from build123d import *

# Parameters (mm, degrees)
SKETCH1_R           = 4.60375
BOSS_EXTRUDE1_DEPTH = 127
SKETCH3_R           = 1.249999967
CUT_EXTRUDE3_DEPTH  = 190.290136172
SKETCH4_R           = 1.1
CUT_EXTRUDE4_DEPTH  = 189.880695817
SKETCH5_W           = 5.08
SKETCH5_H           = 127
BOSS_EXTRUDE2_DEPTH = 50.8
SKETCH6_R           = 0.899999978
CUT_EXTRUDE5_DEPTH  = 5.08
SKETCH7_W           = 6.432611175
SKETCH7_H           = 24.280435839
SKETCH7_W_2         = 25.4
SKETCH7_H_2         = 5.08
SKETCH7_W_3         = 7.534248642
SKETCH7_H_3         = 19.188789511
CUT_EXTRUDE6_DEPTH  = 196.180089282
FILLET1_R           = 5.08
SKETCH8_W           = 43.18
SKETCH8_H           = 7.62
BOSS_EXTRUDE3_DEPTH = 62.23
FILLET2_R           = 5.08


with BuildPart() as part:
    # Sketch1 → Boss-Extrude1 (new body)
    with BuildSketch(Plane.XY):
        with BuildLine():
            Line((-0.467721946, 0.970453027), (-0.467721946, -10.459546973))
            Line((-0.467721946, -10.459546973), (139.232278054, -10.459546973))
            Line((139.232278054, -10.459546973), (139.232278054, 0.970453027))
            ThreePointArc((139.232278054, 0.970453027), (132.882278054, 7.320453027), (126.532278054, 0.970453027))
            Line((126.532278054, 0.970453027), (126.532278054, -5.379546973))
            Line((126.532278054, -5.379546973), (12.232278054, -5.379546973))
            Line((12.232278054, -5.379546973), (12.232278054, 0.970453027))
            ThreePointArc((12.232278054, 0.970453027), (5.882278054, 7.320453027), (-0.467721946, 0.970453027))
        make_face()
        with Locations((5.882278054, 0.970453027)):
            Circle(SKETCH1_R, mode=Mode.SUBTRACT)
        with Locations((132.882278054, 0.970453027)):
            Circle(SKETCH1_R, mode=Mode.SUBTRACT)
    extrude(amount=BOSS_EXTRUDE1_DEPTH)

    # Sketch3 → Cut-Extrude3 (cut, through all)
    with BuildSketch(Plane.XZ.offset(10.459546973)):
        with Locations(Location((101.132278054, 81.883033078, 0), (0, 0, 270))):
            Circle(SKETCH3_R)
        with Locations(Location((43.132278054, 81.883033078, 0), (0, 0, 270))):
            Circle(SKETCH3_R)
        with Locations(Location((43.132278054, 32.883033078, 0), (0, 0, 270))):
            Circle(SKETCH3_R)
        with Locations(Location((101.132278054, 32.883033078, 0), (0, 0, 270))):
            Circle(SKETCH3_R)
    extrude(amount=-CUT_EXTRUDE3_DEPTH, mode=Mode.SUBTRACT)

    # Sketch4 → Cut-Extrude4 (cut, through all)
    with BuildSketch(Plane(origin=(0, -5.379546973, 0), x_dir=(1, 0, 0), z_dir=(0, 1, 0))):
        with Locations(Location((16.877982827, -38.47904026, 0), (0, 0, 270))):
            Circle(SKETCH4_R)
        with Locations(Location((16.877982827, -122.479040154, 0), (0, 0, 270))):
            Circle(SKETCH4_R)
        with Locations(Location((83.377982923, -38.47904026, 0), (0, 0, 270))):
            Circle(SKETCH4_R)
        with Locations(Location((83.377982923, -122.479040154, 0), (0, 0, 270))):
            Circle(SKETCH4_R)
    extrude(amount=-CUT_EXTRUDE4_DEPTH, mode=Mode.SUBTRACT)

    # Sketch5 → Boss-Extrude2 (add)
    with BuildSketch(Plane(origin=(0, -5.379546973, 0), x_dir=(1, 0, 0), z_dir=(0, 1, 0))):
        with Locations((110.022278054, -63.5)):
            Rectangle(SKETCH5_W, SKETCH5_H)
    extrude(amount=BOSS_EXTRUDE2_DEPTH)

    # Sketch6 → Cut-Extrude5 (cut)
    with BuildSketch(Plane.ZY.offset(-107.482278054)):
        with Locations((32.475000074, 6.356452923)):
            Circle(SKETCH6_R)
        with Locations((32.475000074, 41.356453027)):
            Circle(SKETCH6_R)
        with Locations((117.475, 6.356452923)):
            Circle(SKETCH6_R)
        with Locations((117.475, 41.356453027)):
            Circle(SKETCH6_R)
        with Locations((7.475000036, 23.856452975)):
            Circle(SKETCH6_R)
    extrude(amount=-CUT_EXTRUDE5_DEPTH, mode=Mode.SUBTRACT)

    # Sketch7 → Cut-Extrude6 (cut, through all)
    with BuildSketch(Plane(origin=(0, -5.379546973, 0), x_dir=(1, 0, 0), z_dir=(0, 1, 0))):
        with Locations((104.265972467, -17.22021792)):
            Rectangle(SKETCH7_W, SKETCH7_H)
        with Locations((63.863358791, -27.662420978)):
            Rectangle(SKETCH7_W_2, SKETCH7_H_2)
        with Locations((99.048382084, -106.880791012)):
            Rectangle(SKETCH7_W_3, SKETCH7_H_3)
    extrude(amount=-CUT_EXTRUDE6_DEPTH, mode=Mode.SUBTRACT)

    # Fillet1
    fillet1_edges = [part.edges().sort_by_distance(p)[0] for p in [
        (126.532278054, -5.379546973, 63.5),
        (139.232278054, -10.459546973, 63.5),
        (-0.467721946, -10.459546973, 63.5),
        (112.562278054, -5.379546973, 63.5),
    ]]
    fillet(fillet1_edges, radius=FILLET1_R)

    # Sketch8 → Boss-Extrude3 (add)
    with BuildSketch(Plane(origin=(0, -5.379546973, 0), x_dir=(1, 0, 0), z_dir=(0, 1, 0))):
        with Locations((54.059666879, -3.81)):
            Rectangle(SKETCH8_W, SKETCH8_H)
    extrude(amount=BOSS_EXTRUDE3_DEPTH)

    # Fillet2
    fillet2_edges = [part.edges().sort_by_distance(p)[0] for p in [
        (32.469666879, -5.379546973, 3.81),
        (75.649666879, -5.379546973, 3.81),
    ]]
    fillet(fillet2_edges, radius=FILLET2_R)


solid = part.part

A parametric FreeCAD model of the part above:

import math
import FreeCAD as App
import Part
import Sketcher
from FreeCAD import Vector
Q = App.Units.Quantity


def edges_at(feature, points):
    """Names of the edges that pass closest to the given points."""
    edges = feature.Shape.Edges
    near = lambda p: min(range(len(edges)), key=lambda i: edges[i].distToShape(Part.Vertex(*p))[0])
    return sorted({f"Edge{near(p) + 1}" for p in points})

doc = App.newDocument("Part")
params = doc.addObject("Spreadsheet::Sheet", "Params")
for row, (alias, value) in enumerate([
    ("sketch1_radius", "0.25 in"),
    ("sketch1_width", "5.5 in"),
    ("sketch1_height", "0.45 in"),
    ("sketch1_height2", "0.25 in"),
    ("pad1_length", "5 in"),
    ("sketch4_height", "5 in"),
    ("sketch4_width", "0.2 in"),
    ("pad2_length", "2 in"),
    ("pocket3_length", "0.2 in"),
    ("sketch6_width", "1 in"),
    ("sketch6_height", "0.2 in"),
    ("fillet_radius", "0.2 in"),
    ("sketch7_width", "1.7 in"),
    ("sketch7_height", "0.3 in"),
    ("pad3_length", "2.45 in"),
    ("fillet2_radius", "0.2 in"),
], start=1):
    params.set(f"A{row}", alias)
    params.set(f"B{row}", "=" + value)
    params.setAlias(f"B{row}", alias)

body = doc.addObject("PartDesign::Body", "Body")

sketch1 = body.newObject("Sketcher::SketchObject", "Sketch")
sketch1.AttachmentSupport = (doc.getObject("XY_Plane"), [""])
sketch1.MapMode = "FlatFace"
sketch1.addGeometry(Part.LineSegment(Vector(-0.467722, 0.970453, 0), Vector(-0.467722, -10.459547, 0)), False)
sketch1.addGeometry(Part.LineSegment(Vector(-0.467722, -10.459547, 0), Vector(139.232278, -10.459547, 0)), False)
sketch1.addGeometry(Part.LineSegment(Vector(139.232278, -10.459547, 0), Vector(139.232278, 0.970453, 0)), False)
sketch1.addGeometry(Part.ArcOfCircle(Part.Circle(Vector(132.882278, 0.970453, 0), Vector(0, 0, 1), 6.35), math.radians(0), math.radians(180)), False)
sketch1.addGeometry(Part.LineSegment(Vector(126.532278, 0.970453, 0), Vector(126.532278, -5.379547, 0)), False)
sketch1.addGeometry(Part.LineSegment(Vector(126.532278, -5.379547, 0), Vector(12.232278, -5.379547, 0)), False)
sketch1.addGeometry(Part.LineSegment(Vector(12.232278, -5.379547, 0), Vector(12.232278, 0.970453, 0)), False)
sketch1.addGeometry(Part.ArcOfCircle(Part.Circle(Vector(5.882278, 0.970453, 0), Vector(0, 0, 1), 6.35), math.radians(0), math.radians(180)), False)
sketch1.addGeometry(Part.Circle(Vector(5.882278, 0.970453, 0), Vector(0, 0, 1), 4.60375), False)
sketch1.addGeometry(Part.Circle(Vector(132.882278, 0.970453, 0), Vector(0, 0, 1), 4.60375), False)
sketch1.addConstraint(Sketcher.Constraint("Coincident", 0, 2, 1, 1))
sketch1.addConstraint(Sketcher.Constraint("Coincident", 1, 2, 2, 1))
sketch1.addConstraint(Sketcher.Constraint("Tangent", 2, 2, 3, 1))
sketch1.addConstraint(Sketcher.Constraint("Tangent", 3, 2, 4, 1))
sketch1.addConstraint(Sketcher.Constraint("Coincident", 4, 2, 5, 1))
sketch1.addConstraint(Sketcher.Constraint("Coincident", 5, 2, 6, 1))
sketch1.addConstraint(Sketcher.Constraint("Tangent", 6, 2, 7, 1))
sketch1.addConstraint(Sketcher.Constraint("Tangent", 7, 2, 0, 1))
sketch1.addConstraint(Sketcher.Constraint("Vertical", 0))
sketch1.addConstraint(Sketcher.Constraint("Horizontal", 1))
sketch1.addConstraint(Sketcher.Constraint("Vertical", 2))
sketch1.addConstraint(Sketcher.Constraint("Vertical", 4))
sketch1.addConstraint(Sketcher.Constraint("Horizontal", 5))
sketch1.addConstraint(Sketcher.Constraint("Vertical", 6))
sketch1.addConstraint(Sketcher.Constraint("Coincident", 8, 3, 7, 3))
sketch1.addConstraint(Sketcher.Constraint("Coincident", 9, 3, 3, 3))
sketch1.addConstraint(Sketcher.Constraint("Equal", 3, 7))
sketch1.addConstraint(Sketcher.Constraint("Equal", 8, 9))
sketch1.addConstraint(Sketcher.Constraint("Horizontal", 3, 3, 7, 3))
sketch1.addConstraint(Sketcher.Constraint("Radius", 3, Q("0.25 in")))
sketch1.addConstraint(Sketcher.Constraint("DistanceX", 1, 1, 1, 2, Q("5.5 in")))
sketch1.addConstraint(Sketcher.Constraint("Diameter", 8, Q("0.3625 in")))
sketch1.addConstraint(Sketcher.Constraint("DistanceY", 0, 2, 0, 1, Q("0.45 in")))
sketch1.addConstraint(Sketcher.Constraint("DistanceY", 4, 2, 4, 1, Q("0.25 in")))
sketch1.addConstraint(Sketcher.Constraint("DistanceX", -1, 1, 3, 3, Q("132.882278 mm")))
sketch1.addConstraint(Sketcher.Constraint("DistanceY", -1, 1, 3, 3, Q("0.970453 mm")))
sketch1.setExpression("Constraints[19]", "Params.sketch1_radius")
sketch1.setExpression("Constraints[20]", "Params.sketch1_width")
sketch1.setExpression("Constraints[22]", "Params.sketch1_height")
sketch1.setExpression("Constraints[23]", "Params.sketch1_height2")
pad1 = body.newObject("PartDesign::Pad", "Pad")
pad1.Profile = sketch1
pad1.setExpression("Length", "Params.pad1_length")

sketch2 = body.newObject("Sketcher::SketchObject", "Sketch001")
sketch2.AttachmentSupport = (doc.getObject("XZ_Plane"), [""])
sketch2.MapMode = "FlatFace"
sketch2.AttachmentOffset = App.Placement(Vector(0, 0, 10.459547), App.Rotation())
sketch2.addGeometry(Part.Circle(Vector(101.132278, 81.883033, 0), Vector(0, 0, 1), 1.25), False)
sketch2.addGeometry(Part.Circle(Vector(43.132278, 81.883033, 0), Vector(0, 0, 1), 1.25), False)
sketch2.addGeometry(Part.Circle(Vector(43.132278, 32.883033, 0), Vector(0, 0, 1), 1.25), False)
sketch2.addGeometry(Part.Circle(Vector(101.132278, 32.883033, 0), Vector(0, 0, 1), 1.25), False)
sketch2.addConstraint(Sketcher.Constraint("Equal", 0, 1))
sketch2.addConstraint(Sketcher.Constraint("Equal", 1, 2))
sketch2.addConstraint(Sketcher.Constraint("Equal", 2, 3))
sketch2.addConstraint(Sketcher.Constraint("Horizontal", 0, 3, 1, 3))
sketch2.addConstraint(Sketcher.Constraint("Horizontal", 2, 3, 3, 3))
sketch2.addConstraint(Sketcher.Constraint("Vertical", 1, 3, 2, 3))
sketch2.addConstraint(Sketcher.Constraint("Vertical", 0, 3, 3, 3))
sketch2.addConstraint(Sketcher.Constraint("Diameter", 0, Q("2.5 mm")))
sketch2.addConstraint(Sketcher.Constraint("DistanceX", 1, 3, 0, 3, Q("58 mm")))
sketch2.addConstraint(Sketcher.Constraint("DistanceY", 2, 3, 1, 3, Q("49 mm")))
sketch2.addConstraint(Sketcher.Constraint("DistanceX", -1, 1, 0, 3, Q("101.132278 mm")))
sketch2.addConstraint(Sketcher.Constraint("DistanceY", -1, 1, 0, 3, Q("81.883033 mm")))
pocket1 = body.newObject("PartDesign::Pocket", "Pocket")
pocket1.Profile = sketch2
pocket1.Type = "ThroughAll"

sketch3 = body.newObject("Sketcher::SketchObject", "Sketch002")
sketch3.AttachmentSupport = (doc.getObject("XZ_Plane"), [""])
sketch3.MapMode = "FlatFace"
sketch3.AttachmentOffset = App.Placement(Vector(0, 0, 5.379547), App.Rotation())
sketch3.addGeometry(Part.Circle(Vector(16.877983, 38.47904, 0), Vector(0, 0, 1), 1.1), False)
sketch3.addGeometry(Part.Circle(Vector(16.877983, 122.47904, 0), Vector(0, 0, 1), 1.1), False)
sketch3.addGeometry(Part.Circle(Vector(83.377983, 38.47904, 0), Vector(0, 0, 1), 1.1), False)
sketch3.addGeometry(Part.Circle(Vector(83.377983, 122.47904, 0), Vector(0, 0, 1), 1.1), False)
sketch3.addConstraint(Sketcher.Constraint("Equal", 0, 1))
sketch3.addConstraint(Sketcher.Constraint("Equal", 1, 2))
sketch3.addConstraint(Sketcher.Constraint("Equal", 2, 3))
sketch3.addConstraint(Sketcher.Constraint("Horizontal", 0, 3, 2, 3))
sketch3.addConstraint(Sketcher.Constraint("Horizontal", 1, 3, 3, 3))
sketch3.addConstraint(Sketcher.Constraint("Vertical", 0, 3, 1, 3))
sketch3.addConstraint(Sketcher.Constraint("Vertical", 2, 3, 3, 3))
sketch3.addConstraint(Sketcher.Constraint("Diameter", 0, Q("2.2 mm")))
sketch3.addConstraint(Sketcher.Constraint("DistanceY", 0, 3, 1, 3, Q("84 mm")))
sketch3.addConstraint(Sketcher.Constraint("DistanceX", 0, 3, 2, 3, Q("66.5 mm")))
sketch3.addConstraint(Sketcher.Constraint("DistanceY", -1, 1, 0, 3, Q("38.47904 mm")))
sketch3.addConstraint(Sketcher.Constraint("DistanceX", -1, 1, 0, 3, Q("16.877983 mm")))
pocket2 = body.newObject("PartDesign::Pocket", "Pocket001")
pocket2.Profile = sketch3
pocket2.Type = "ThroughAll"
pocket2.Reversed = True

sketch4 = body.newObject("Sketcher::SketchObject", "Sketch003")
sketch4.AttachmentSupport = (doc.getObject("XZ_Plane"), [""])
sketch4.MapMode = "FlatFace"
sketch4.AttachmentOffset = App.Placement(Vector(0, 0, 5.379547), App.Rotation())
sketch4.addGeometry(Part.LineSegment(Vector(107.482278, 0, 0), Vector(107.482278, 127, 0)), False)
sketch4.addGeometry(Part.LineSegment(Vector(107.482278, 127, 0), Vector(112.562278, 127, 0)), False)
sketch4.addGeometry(Part.LineSegment(Vector(112.562278, 127, 0), Vector(112.562278, 0, 0)), False)
sketch4.addGeometry(Part.LineSegment(Vector(112.562278, 0, 0), Vector(107.482278, 0, 0)), False)
sketch4.addConstraint(Sketcher.Constraint("Coincident", 0, 2, 1, 1))
sketch4.addConstraint(Sketcher.Constraint("Coincident", 1, 2, 2, 1))
sketch4.addConstraint(Sketcher.Constraint("Coincident", 2, 2, 3, 1))
sketch4.addConstraint(Sketcher.Constraint("Coincident", 3, 2, 0, 1))
sketch4.addConstraint(Sketcher.Constraint("Vertical", 0))
sketch4.addConstraint(Sketcher.Constraint("Horizontal", 1))
sketch4.addConstraint(Sketcher.Constraint("Vertical", 2))
sketch4.addConstraint(Sketcher.Constraint("Horizontal", 3))
sketch4.addConstraint(Sketcher.Constraint("PointOnObject", 2, 2, -1))
sketch4.addConstraint(Sketcher.Constraint("DistanceY", 0, 1, 0, 2, Q("5 in")))
sketch4.addConstraint(Sketcher.Constraint("DistanceX", 1, 1, 1, 2, Q("0.2 in")))
sketch4.addConstraint(Sketcher.Constraint("DistanceX", -1, 1, 0, 2, Q("107.482278 mm")))
sketch4.setExpression("Constraints[9]", "Params.sketch4_height")
sketch4.setExpression("Constraints[10]", "Params.sketch4_width")
pad2 = body.newObject("PartDesign::Pad", "Pad001")
pad2.Profile = sketch4
pad2.setExpression("Length", "Params.pad2_length")
pad2.Reversed = True

sketch5 = body.newObject("Sketcher::SketchObject", "Sketch004")
sketch5.AttachmentSupport = (doc.getObject("YZ_Plane"), [""])
sketch5.MapMode = "FlatFace"
sketch5.AttachmentOffset = App.Placement(Vector(0, 0, 107.482278), App.Rotation())
sketch5.addGeometry(Part.Circle(Vector(6.356453, 32.475, 0), Vector(0, 0, 1), 0.9), False)
sketch5.addGeometry(Part.Circle(Vector(41.356453, 32.475, 0), Vector(0, 0, 1), 0.9), False)
sketch5.addGeometry(Part.Circle(Vector(6.356453, 117.475, 0), Vector(0, 0, 1), 0.9), False)
sketch5.addGeometry(Part.Circle(Vector(41.356453, 117.475, 0), Vector(0, 0, 1), 0.9), False)
sketch5.addGeometry(Part.Circle(Vector(23.856453, 7.475, 0), Vector(0, 0, 1), 0.9), False)
sketch5.addConstraint(Sketcher.Constraint("Equal", 0, 1))
sketch5.addConstraint(Sketcher.Constraint("Equal", 1, 2))
sketch5.addConstraint(Sketcher.Constraint("Equal", 2, 3))
sketch5.addConstraint(Sketcher.Constraint("Equal", 3, 4))
sketch5.addConstraint(Sketcher.Constraint("Horizontal", 0, 3, 1, 3))
sketch5.addConstraint(Sketcher.Constraint("Horizontal", 2, 3, 3, 3))
sketch5.addConstraint(Sketcher.Constraint("Vertical", 0, 3, 2, 3))
sketch5.addConstraint(Sketcher.Constraint("Vertical", 1, 3, 3, 3))
sketch5.addConstraint(Sketcher.Constraint("Diameter", 0, Q("1.8 mm")))
sketch5.addConstraint(Sketcher.Constraint("DistanceY", -1, 1, 2, 3, Q("4.625 in")))
sketch5.addConstraint(Sketcher.Constraint("DistanceY", -1, 1, 0, 3, Q("32.475 mm")))
sketch5.addConstraint(Sketcher.Constraint("DistanceY", -1, 1, 4, 3, Q("7.475 mm")))
sketch5.addConstraint(Sketcher.Constraint("DistanceX", 0, 3, 1, 3, Q("35 mm")))
sketch5.addConstraint(Sketcher.Constraint("DistanceX", 0, 3, 4, 3, Q("17.5 mm")))
sketch5.addConstraint(Sketcher.Constraint("DistanceX", -1, 1, 0, 3, Q("6.356453 mm")))
pocket3 = body.newObject("PartDesign::Pocket", "Pocket002")
pocket3.Profile = sketch5
pocket3.setExpression("Length", "Params.pocket3_length")
pocket3.Reversed = True

sketch6 = body.newObject("Sketcher::SketchObject", "Sketch005")
sketch6.AttachmentSupport = (doc.getObject("XZ_Plane"), [""])
sketch6.MapMode = "FlatFace"
sketch6.AttachmentOffset = App.Placement(Vector(0, 0, 5.379547), App.Rotation())
sketch6.addGeometry(Part.LineSegment(Vector(101.049667, 5.08, 0), Vector(101.049667, 29.360436, 0)), False)
sketch6.addGeometry(Part.LineSegment(Vector(101.049667, 29.360436, 0), Vector(107.482278, 29.360436, 0)), False)
sketch6.addGeometry(Part.LineSegment(Vector(107.482278, 29.360436, 0), Vector(107.482278, 5.08, 0)), False)
sketch6.addGeometry(Part.LineSegment(Vector(107.482278, 5.08, 0), Vector(101.049667, 5.08, 0)), False)
sketch6.addGeometry(Part.LineSegment(Vector(51.163359, 25.122421, 0), Vector(51.163359, 30.202421, 0)), False)
sketch6.addGeometry(Part.LineSegment(Vector(51.163359, 30.202421, 0), Vector(76.563359, 30.202421, 0)), False)
sketch6.addGeometry(Part.LineSegment(Vector(76.563359, 30.202421, 0), Vector(76.563359, 25.122421, 0)), False)
sketch6.addGeometry(Part.LineSegment(Vector(76.563359, 25.122421, 0), Vector(51.163359, 25.122421, 0)), False)
sketch6.addGeometry(Part.LineSegment(Vector(95.281258, 97.286396, 0), Vector(95.281258, 116.475186, 0)), False)
sketch6.addGeometry(Part.LineSegment(Vector(95.281258, 116.475186, 0), Vector(102.815506, 116.475186, 0)), False)
sketch6.addGeometry(Part.LineSegment(Vector(102.815506, 116.475186, 0), Vector(102.815506, 97.286396, 0)), False)
sketch6.addGeometry(Part.LineSegment(Vector(102.815506, 97.286396, 0), Vector(95.281258, 97.286396, 0)), False)
sketch6.addConstraint(Sketcher.Constraint("Coincident", 0, 2, 1, 1))
sketch6.addConstraint(Sketcher.Constraint("Coincident", 1, 2, 2, 1))
sketch6.addConstraint(Sketcher.Constraint("Coincident", 2, 2, 3, 1))
sketch6.addConstraint(Sketcher.Constraint("Coincident", 3, 2, 0, 1))
sketch6.addConstraint(Sketcher.Constraint("Coincident", 4, 2, 5, 1))
sketch6.addConstraint(Sketcher.Constraint("Coincident", 5, 2, 6, 1))
sketch6.addConstraint(Sketcher.Constraint("Coincident", 6, 2, 7, 1))
sketch6.addConstraint(Sketcher.Constraint("Coincident", 7, 2, 4, 1))
sketch6.addConstraint(Sketcher.Constraint("Coincident", 8, 2, 9, 1))
sketch6.addConstraint(Sketcher.Constraint("Coincident", 9, 2, 10, 1))
sketch6.addConstraint(Sketcher.Constraint("Coincident", 10, 2, 11, 1))
sketch6.addConstraint(Sketcher.Constraint("Coincident", 11, 2, 8, 1))
sketch6.addConstraint(Sketcher.Constraint("Vertical", 0))
sketch6.addConstraint(Sketcher.Constraint("Horizontal", 1))
sketch6.addConstraint(Sketcher.Constraint("Vertical", 2))
sketch6.addConstraint(Sketcher.Constraint("Horizontal", 3))
sketch6.addConstraint(Sketcher.Constraint("Vertical", 4))
sketch6.addConstraint(Sketcher.Constraint("Horizontal", 5))
sketch6.addConstraint(Sketcher.Constraint("Vertical", 6))
sketch6.addConstraint(Sketcher.Constraint("Horizontal", 7))
sketch6.addConstraint(Sketcher.Constraint("Vertical", 8))
sketch6.addConstraint(Sketcher.Constraint("Horizontal", 9))
sketch6.addConstraint(Sketcher.Constraint("Vertical", 10))
sketch6.addConstraint(Sketcher.Constraint("Horizontal", 11))
sketch6.addConstraint(Sketcher.Constraint("DistanceX", 5, 1, 5, 2, Q("1 in")))
sketch6.addConstraint(Sketcher.Constraint("DistanceY", 4, 1, 4, 2, Q("0.2 in")))
sketch6.addConstraint(Sketcher.Constraint("DistanceY", -1, 1, 2, 2, Q("0.2 in")))
sketch6.addConstraint(Sketcher.Constraint("DistanceX", 1, 1, 1, 2, Q("6.432611 mm")))
sketch6.addConstraint(Sketcher.Constraint("DistanceX", 9, 1, 9, 2, Q("7.534249 mm")))
sketch6.addConstraint(Sketcher.Constraint("DistanceY", 8, 1, 8, 2, Q("19.18879 mm")))
sketch6.addConstraint(Sketcher.Constraint("DistanceX", 5, 2, 8, 2, Q("18.717899 mm")))
sketch6.addConstraint(Sketcher.Constraint("DistanceY", 0, 1, 0, 2, Q("24.280436 mm")))
sketch6.addConstraint(Sketcher.Constraint("DistanceX", -1, 1, 1, 2, Q("107.482278 mm")))
sketch6.addConstraint(Sketcher.Constraint("DistanceX", -1, 1, 4, 2, Q("51.163359 mm")))
sketch6.addConstraint(Sketcher.Constraint("DistanceY", -1, 1, 4, 2, Q("30.202421 mm")))
sketch6.addConstraint(Sketcher.Constraint("DistanceY", 0, 2, 8, 2, Q("87.11475 mm")))
sketch6.setExpression("Constraints[24]", "Params.sketch6_width")
sketch6.setExpression("Constraints[25]", "Params.sketch6_height")
pocket4 = body.newObject("PartDesign::Pocket", "Pocket003")
pocket4.Profile = sketch6
pocket4.Type = "ThroughAll"
pocket4.Reversed = True
doc.recompute()

fillet = body.newObject("PartDesign::Fillet", "Fillet")
fillet.Base = (pocket4, edges_at(pocket4, [
    (126.532, -5.38, 63.5),
    (139.232, -10.46, 63.5),
    (-0.468, -10.46, 63.5),
    (112.562, -5.38, 63.5),
]))
fillet.setExpression("Radius", "Params.fillet_radius")

sketch7 = body.newObject("Sketcher::SketchObject", "Sketch006")
sketch7.AttachmentSupport = (doc.getObject("XZ_Plane"), [""])
sketch7.MapMode = "FlatFace"
sketch7.AttachmentOffset = App.Placement(Vector(0, 0, 5.379547), App.Rotation())
sketch7.addGeometry(Part.LineSegment(Vector(32.469667, 0, 0), Vector(32.469667, 7.62, 0)), False)
sketch7.addGeometry(Part.LineSegment(Vector(32.469667, 7.62, 0), Vector(75.649667, 7.62, 0)), False)
sketch7.addGeometry(Part.LineSegment(Vector(75.649667, 7.62, 0), Vector(75.649667, 0, 0)), False)
sketch7.addGeometry(Part.LineSegment(Vector(75.649667, 0, 0), Vector(32.469667, 0, 0)), False)
sketch7.addConstraint(Sketcher.Constraint("Coincident", 0, 2, 1, 1))
sketch7.addConstraint(Sketcher.Constraint("Coincident", 1, 2, 2, 1))
sketch7.addConstraint(Sketcher.Constraint("Coincident", 2, 2, 3, 1))
sketch7.addConstraint(Sketcher.Constraint("Coincident", 3, 2, 0, 1))
sketch7.addConstraint(Sketcher.Constraint("Vertical", 0))
sketch7.addConstraint(Sketcher.Constraint("Horizontal", 1))
sketch7.addConstraint(Sketcher.Constraint("Vertical", 2))
sketch7.addConstraint(Sketcher.Constraint("Horizontal", 3))
sketch7.addConstraint(Sketcher.Constraint("PointOnObject", 2, 2, -1))
sketch7.addConstraint(Sketcher.Constraint("DistanceX", 1, 1, 1, 2, Q("1.7 in")))
sketch7.addConstraint(Sketcher.Constraint("DistanceY", 0, 1, 0, 2, Q("0.3 in")))
sketch7.addConstraint(Sketcher.Constraint("DistanceX", -1, 1, 0, 2, Q("32.469667 mm")))
sketch7.setExpression("Constraints[9]", "Params.sketch7_width")
sketch7.setExpression("Constraints[10]", "Params.sketch7_height")
pad3 = body.newObject("PartDesign::Pad", "Pad002")
pad3.Profile = sketch7
pad3.setExpression("Length", "Params.pad3_length")
pad3.Reversed = True
doc.recompute()

fillet2 = body.newObject("PartDesign::Fillet", "Fillet001")
fillet2.Base = (pad3, edges_at(pad3, [(32.47, -5.38, 3.81), (75.65, -5.38, 3.81)]))
fillet2.setExpression("Radius", "Params.fillet2_radius")

doc.recompute()
